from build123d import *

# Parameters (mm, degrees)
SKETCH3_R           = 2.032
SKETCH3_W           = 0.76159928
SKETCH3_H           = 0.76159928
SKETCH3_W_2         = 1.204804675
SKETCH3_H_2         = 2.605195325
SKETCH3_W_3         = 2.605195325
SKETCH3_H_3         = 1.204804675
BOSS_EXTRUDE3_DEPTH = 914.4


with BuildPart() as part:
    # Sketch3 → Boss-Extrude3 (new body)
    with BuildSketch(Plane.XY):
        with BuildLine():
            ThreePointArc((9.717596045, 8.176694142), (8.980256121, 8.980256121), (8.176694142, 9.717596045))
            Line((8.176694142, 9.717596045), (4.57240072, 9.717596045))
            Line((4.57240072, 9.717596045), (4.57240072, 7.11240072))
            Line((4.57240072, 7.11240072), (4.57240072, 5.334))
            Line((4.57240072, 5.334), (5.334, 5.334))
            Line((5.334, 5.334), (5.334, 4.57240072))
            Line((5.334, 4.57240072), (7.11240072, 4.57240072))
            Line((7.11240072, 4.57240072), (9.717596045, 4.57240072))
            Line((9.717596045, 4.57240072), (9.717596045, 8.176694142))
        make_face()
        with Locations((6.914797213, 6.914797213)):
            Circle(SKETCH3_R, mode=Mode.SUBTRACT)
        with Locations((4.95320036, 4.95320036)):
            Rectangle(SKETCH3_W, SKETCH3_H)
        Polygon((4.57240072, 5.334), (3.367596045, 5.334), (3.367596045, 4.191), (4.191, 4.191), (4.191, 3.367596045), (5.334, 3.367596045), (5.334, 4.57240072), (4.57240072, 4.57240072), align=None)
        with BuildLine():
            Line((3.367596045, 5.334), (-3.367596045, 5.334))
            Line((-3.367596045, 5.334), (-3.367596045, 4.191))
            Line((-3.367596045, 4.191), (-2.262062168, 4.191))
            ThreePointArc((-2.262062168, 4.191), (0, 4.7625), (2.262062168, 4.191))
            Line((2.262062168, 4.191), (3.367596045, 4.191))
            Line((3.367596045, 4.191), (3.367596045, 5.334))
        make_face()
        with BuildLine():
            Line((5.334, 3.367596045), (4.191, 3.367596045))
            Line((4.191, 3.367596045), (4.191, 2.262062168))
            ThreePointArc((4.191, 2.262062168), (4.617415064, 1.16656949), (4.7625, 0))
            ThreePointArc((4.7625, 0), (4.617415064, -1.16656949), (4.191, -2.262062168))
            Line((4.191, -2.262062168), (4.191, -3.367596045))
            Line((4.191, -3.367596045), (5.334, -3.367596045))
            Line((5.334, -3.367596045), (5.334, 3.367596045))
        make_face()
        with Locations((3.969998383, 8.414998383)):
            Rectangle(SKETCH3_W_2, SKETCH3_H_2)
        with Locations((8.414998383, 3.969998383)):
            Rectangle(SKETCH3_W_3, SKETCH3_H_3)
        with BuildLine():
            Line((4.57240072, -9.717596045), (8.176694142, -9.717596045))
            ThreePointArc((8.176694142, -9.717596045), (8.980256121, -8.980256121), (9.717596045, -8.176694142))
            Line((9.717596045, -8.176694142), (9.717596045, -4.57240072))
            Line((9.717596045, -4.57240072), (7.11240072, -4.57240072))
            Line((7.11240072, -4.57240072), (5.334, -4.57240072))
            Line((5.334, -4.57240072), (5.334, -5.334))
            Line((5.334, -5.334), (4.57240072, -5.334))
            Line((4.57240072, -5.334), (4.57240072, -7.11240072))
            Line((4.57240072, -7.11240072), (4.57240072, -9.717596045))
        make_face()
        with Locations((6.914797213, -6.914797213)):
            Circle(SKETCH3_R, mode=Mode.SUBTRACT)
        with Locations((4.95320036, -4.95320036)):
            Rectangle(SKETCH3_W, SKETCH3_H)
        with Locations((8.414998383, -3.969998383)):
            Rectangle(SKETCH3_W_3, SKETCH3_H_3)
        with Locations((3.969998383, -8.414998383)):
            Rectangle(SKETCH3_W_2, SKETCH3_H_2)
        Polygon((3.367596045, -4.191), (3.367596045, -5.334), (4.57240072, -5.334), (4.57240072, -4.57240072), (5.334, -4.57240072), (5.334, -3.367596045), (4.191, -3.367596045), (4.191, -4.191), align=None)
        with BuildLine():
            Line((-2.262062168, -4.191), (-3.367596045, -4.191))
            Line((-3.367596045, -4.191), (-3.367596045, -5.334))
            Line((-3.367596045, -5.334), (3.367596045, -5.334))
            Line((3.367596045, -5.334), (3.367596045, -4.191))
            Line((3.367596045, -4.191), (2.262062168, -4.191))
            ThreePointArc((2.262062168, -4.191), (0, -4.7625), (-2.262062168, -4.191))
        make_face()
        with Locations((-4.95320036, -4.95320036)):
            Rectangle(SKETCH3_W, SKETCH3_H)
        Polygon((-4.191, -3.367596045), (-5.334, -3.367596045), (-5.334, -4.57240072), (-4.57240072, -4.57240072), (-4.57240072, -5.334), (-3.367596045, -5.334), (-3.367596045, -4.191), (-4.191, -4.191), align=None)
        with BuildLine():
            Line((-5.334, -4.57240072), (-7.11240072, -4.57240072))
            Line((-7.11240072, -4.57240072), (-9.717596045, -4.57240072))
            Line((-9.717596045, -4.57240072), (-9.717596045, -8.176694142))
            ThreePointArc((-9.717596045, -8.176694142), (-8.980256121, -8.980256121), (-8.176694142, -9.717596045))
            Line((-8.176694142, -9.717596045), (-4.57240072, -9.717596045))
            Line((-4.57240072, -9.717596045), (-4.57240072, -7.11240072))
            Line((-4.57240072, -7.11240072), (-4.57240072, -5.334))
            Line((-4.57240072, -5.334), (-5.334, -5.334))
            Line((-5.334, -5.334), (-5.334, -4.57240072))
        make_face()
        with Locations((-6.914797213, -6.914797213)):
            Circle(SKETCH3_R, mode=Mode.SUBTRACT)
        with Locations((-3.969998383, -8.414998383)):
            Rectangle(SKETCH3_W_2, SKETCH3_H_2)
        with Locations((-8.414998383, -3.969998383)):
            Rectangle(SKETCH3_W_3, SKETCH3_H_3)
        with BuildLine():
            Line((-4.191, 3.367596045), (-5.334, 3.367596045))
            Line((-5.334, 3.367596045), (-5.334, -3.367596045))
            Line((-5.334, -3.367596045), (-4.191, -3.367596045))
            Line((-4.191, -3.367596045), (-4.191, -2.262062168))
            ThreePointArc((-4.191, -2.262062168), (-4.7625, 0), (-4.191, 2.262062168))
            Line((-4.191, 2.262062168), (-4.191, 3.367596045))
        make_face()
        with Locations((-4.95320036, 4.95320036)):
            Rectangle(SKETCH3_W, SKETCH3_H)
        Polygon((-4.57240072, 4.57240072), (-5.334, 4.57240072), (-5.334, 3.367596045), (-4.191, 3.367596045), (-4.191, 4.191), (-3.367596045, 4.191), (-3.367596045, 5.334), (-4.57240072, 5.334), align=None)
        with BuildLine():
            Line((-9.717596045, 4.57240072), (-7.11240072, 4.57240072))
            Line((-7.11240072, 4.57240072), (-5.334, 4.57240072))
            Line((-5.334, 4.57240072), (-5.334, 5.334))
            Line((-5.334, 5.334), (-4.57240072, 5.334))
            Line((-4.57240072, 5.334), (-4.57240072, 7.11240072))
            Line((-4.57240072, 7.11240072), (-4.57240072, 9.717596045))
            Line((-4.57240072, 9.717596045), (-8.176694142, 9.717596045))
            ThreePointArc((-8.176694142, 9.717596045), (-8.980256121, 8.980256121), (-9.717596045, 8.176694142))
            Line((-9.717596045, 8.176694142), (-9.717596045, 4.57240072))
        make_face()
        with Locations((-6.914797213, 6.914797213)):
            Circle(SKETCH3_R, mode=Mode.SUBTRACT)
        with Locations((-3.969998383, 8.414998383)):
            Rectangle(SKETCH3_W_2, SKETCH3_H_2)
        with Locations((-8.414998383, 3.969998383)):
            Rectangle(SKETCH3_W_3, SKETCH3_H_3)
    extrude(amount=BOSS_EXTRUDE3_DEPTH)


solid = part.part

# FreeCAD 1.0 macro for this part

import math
import FreeCAD as App
import Part
import Sketcher

V = App.Vector
Q = App.Units.Quantity

doc = App.newDocument("Part")
body = doc.addObject("PartDesign::Body", "Body")

# Sketch on XY plane
sketch1 = body.newObject("Sketcher::SketchObject", "Sketch")
sketch1.AttachmentSupport = (doc.getObject("XY_Plane"), [""])
sketch1.MapMode = "FlatFace"
sketch1.addGeometry(Part.ArcOfCircle(Part.Circle(V(0, 0, 0), V(0, 0, 1), 12.7), math.radians(40.08), math.radians(49.92)), False)
sketch1.addGeometry(Part.LineSegment(V(8.2, 9.7, 0), V(4.6, 9.7, 0)), False)
sketch1.addGeometry(Part.LineSegment(V(4.6, 9.7, 0), V(3.4, 9.7, 0)), False)
sketch1.addGeometry(Part.LineSegment(V(3.4, 9.7, 0), V(3.4, 7.1, 0)), False)
sketch1.addGeometry(Part.LineSegment(V(3.4, 7.1, 0), V(4.6, 7.1, 0)), False)
sketch1.addGeometry(Part.LineSegment(V(4.6, 7.1, 0), V(4.6, 5.3, 0)), False)
sketch1.addGeometry(Part.LineSegment(V(4.6, 5.3, 0), V(-4.6, 5.3, 0)), False)
sketch1.addGeometry(Part.LineSegment(V(-4.6, 5.3, 0), V(-4.6, 7.1, 0)), False)
sketch1.addGeometry(Part.LineSegment(V(-4.6, 7.1, 0), V(-3.4, 7.1, 0)), False)
sketch1.addGeometry(Part.LineSegment(V(-3.4, 7.1, 0), V(-3.4, 9.7, 0)), False)
sketch1.addGeometry(Part.LineSegment(V(-3.4, 9.7, 0), V(-4.6, 9.7, 0)), False)
sketch1.addGeometry(Part.LineSegment(V(-4.6, 9.7, 0), V(-8.2, 9.7, 0)), False)
sketch1.addGeometry(Part.ArcOfCircle(Part.Circle(V(0, 0, 0), V(0, 0, 1), 12.7), math.radians(130.08), math.radians(139.92)), False)
sketch1.addGeometry(Part.LineSegment(V(-9.7, 8.2, 0), V(-9.7, 4.6, 0)), False)
sketch1.addGeometry(Part.LineSegment(V(-9.7, 4.6, 0), V(-9.7, 3.4, 0)), False)
sketch1.addGeometry(Part.LineSegment(V(-9.7, 3.4, 0), V(-7.1, 3.4, 0)), False)
sketch1.addGeometry(Part.LineSegment(V(-7.1, 3.4, 0), V(-7.1, 4.6, 0)), False)
sketch1.addGeometry(Part.LineSegment(V(-7.1, 4.6, 0), V(-5.3, 4.6, 0)), False)
sketch1.addGeometry(Part.LineSegment(V(-5.3, 4.6, 0), V(-5.3, -4.6, 0)), False)
sketch1.addGeometry(Part.LineSegment(V(-5.3, -4.6, 0), V(-7.1, -4.6, 0)), False)
sketch1.addGeometry(Part.LineSegment(V(-7.1, -4.6, 0), V(-7.1, -3.4, 0)), False)
sketch1.addGeometry(Part.LineSegment(V(-7.1, -3.4, 0), V(-9.7, -3.4, 0)), False)
sketch1.addGeometry(Part.LineSegment(V(-9.7, -3.4, 0), V(-9.7, -4.6, 0)), False)
sketch1.addGeometry(Part.LineSegment(V(-9.7, -4.6, 0), V(-9.7, -8.2, 0)), False)
sketch1.addGeometry(Part.ArcOfCircle(Part.Circle(V(0, 0, 0), V(0, 0, 1), 12.7), math.radians(-139.92), math.radians(-130.08)), False)
sketch1.addGeometry(Part.LineSegment(V(-8.2, -9.7, 0), V(-4.6, -9.7, 0)), False)
sketch1.addGeometry(Part.LineSegment(V(-4.6, -9.7, 0), V(-3.4, -9.7, 0)), False)
sketch1.addGeometry(Part.LineSegment(V(-3.4, -9.7, 0), V(-3.4, -7.1, 0)), False)
sketch1.addGeometry(Part.LineSegment(V(-3.4, -7.1, 0), V(-4.6, -7.1, 0)), False)
sketch1.addGeometry(Part.LineSegment(V(-4.6, -7.1, 0), V(-4.6, -5.3, 0)), False)
sketch1.addGeometry(Part.LineSegment(V(-4.6, -5.3, 0), V(4.6, -5.3, 0)), False)
sketch1.addGeometry(Part.LineSegment(V(4.6, -5.3, 0), V(4.6, -7.1, 0)), False)
sketch1.addGeometry(Part.LineSegment(V(4.6, -7.1, 0), V(3.4, -7.1, 0)), False)
sketch1.addGeometry(Part.LineSegment(V(3.4, -7.1, 0), V(3.4, -9.7, 0)), False)
sketch1.addGeometry(Part.LineSegment(V(3.4, -9.7, 0), V(4.6, -9.7, 0)), False)
sketch1.addGeometry(Part.LineSegment(V(4.6, -9.7, 0), V(8.2, -9.7, 0)), False)
sketch1.addGeometry(Part.ArcOfCircle(Part.Circle(V(0, 0, 0), V(0, 0, 1), 12.7), math.radians(-49.92), math.radians(-40.08)), False)
sketch1.addGeometry(Part.LineSegment(V(9.7, -8.2, 0), V(9.7, -4.6, 0)), False)
sketch1.addGeometry(Part.LineSegment(V(9.7, -4.6, 0), V(9.7, -3.4, 0)), False)
sketch1.addGeometry(Part.LineSegment(V(9.7, -3.4, 0), V(7.1, -3.4, 0)), False)
sketch1.addGeometry(Part.LineSegment(V(7.1, -3.4, 0), V(7.1, -4.6, 0)), False)
sketch1.addGeometry(Part.LineSegment(V(7.1, -4.6, 0), V(5.3, -4.6, 0)), False)
sketch1.addGeometry(Part.LineSegment(V(5.3, -4.6, 0), V(5.3, 4.6, 0)), False)
sketch1.addGeometry(Part.LineSegment(V(5.3, 4.6, 0), V(7.1, 4.6, 0)), False)
sketch1.addGeometry(Part.LineSegment(V(7.1, 4.6, 0), V(7.1, 3.4, 0)), False)
sketch1.addGeometry(Part.LineSegment(V(7.1, 3.4, 0), V(9.7, 3.4, 0)), False)
sketch1.addGeometry(Part.LineSegment(V(9.7, 3.4, 0), V(9.7, 4.6, 0)), False)
sketch1.addGeometry(Part.LineSegment(V(9.7, 4.6, 0), V(9.7, 8.2, 0)), False)
sketch1.addGeometry(Part.Circle(V(-6.9, -6.9, 0), V(0, 0, 1), 2), False)
sketch1.addGeometry(Part.Circle(V(6.9, -6.9, 0), V(0, 0, 1), 2), False)
sketch1.addGeometry(Part.Circle(V(-6.9, 6.9, 0), V(0, 0, 1), 2), False)
sketch1.addGeometry(Part.ArcOfCircle(Part.Circle(V(0, 0, 0), V(0, 0, 1), 4.8), math.radians(62), math.radians(118)), False)
sketch1.addGeometry(Part.LineSegment(V(2.3, 4.2, 0), V(4.2, 4.2, 0)), False)
sketch1.addGeometry(Part.LineSegment(V(4.2, 4.2, 0), V(4.2, 2.3, 0)), False)
sketch1.addGeometry(Part.ArcOfCircle(Part.Circle(V(0, 0, 0), V(0, 0, 1), 4.8), math.radians(0), math.radians(28)), False)
sketch1.addGeometry(Part.ArcOfCircle(Part.Circle(V(0, 0, 0), V(0, 0, 1), 4.8), math.radians(-28), math.radians(0)), False)
sketch1.addGeometry(Part.LineSegment(V(4.2, -2.3, 0), V(4.2, -4.2, 0)), False)
sketch1.addGeometry(Part.LineSegment(V(4.2, -4.2, 0), V(2.3, -4.2, 0)), False)
sketch1.addGeometry(Part.ArcOfCircle(Part.Circle(V(0, 0, 0), V(0, 0, 1), 4.8), math.radians(-118), math.radians(-62)), False)
sketch1.addGeometry(Part.LineSegment(V(-2.3, -4.2, 0), V(-4.2, -4.2, 0)), False)
sketch1.addGeometry(Part.LineSegment(V(-4.2, -4.2, 0), V(-4.2, -2.3, 0)), False)
sketch1.addGeometry(Part.ArcOfCircle(Part.Circle(V(0, 0, 0), V(0, 0, 1), 4.8), math.radians(152), math.radians(208)), False)
sketch1.addGeometry(Part.LineSegment(V(-4.2, 2.3, 0), V(-4.2, 4.2, 0)), False)
sketch1.addGeometry(Part.LineSegment(V(-4.2, 4.2, 0), V(-2.3, 4.2, 0)), False)
sketch1.addGeometry(Part.Circle(V(6.9, 6.9, 0), V(0, 0, 1), 2), False)
sketch1.addConstraint(Sketcher.Constraint("Coincident", 0, 2, 1, 1))
sketch1.addConstraint(Sketcher.Constraint("Coincident", 1, 2, 2, 1))
sketch1.addConstraint(Sketcher.Constraint("Coincident", 2, 2, 3, 1))
sketch1.addConstraint(Sketcher.Constraint("Coincident", 3, 2, 4, 1))
sketch1.addConstraint(Sketcher.Constraint("Coincident", 4, 2, 5, 1))
sketch1.addConstraint(Sketcher.Constraint("Coincident", 5, 2, 6, 1))
sketch1.addConstraint(Sketcher.Constraint("Coincident", 6, 2, 7, 1))
sketch1.addConstraint(Sketcher.Constraint("Coincident", 7, 2, 8, 1))
sketch1.addConstraint(Sketcher.Constraint("Coincident", 8, 2, 9, 1))
sketch1.addConstraint(Sketcher.Constraint("Coincident", 9, 2, 10, 1))
sketch1.addConstraint(Sketcher.Constraint("Coincident", 10, 2, 11, 1))
sketch1.addConstraint(Sketcher.Constraint("Coincident", 11, 2, 12, 1))
sketch1.addConstraint(Sketcher.Constraint("Coincident", 12, 2, 13, 1))
sketch1.addConstraint(Sketcher.Constraint("Coincident", 13, 2, 14, 1))
sketch1.addConstraint(Sketcher.Constraint("Coincident", 14, 2, 15, 1))
sketch1.addConstraint(Sketcher.Constraint("Coincident", 15, 2, 16, 1))
sketch1.addConstraint(Sketcher.Constraint("Coincident", 16, 2, 17, 1))
sketch1.addConstraint(Sketcher.Constraint("Coincident", 17, 2, 18, 1))
sketch1.addConstraint(Sketcher.Constraint("Coincident", 18, 2, 19, 1))
sketch1.addConstraint(Sketcher.Constraint("Coincident", 19, 2, 20, 1))
sketch1.addConstraint(Sketcher.Constraint("Coincident", 20, 2, 21, 1))
sketch1.addConstraint(Sketcher.Constraint("Coincident", 21, 2, 22, 1))
sketch1.addConstraint(Sketcher.Constraint("Coincident", 22, 2, 23, 1))
sketch1.addConstraint(Sketcher.Constraint("Coincident", 23, 2, 24, 1))
sketch1.addConstraint(Sketcher.Constraint("Coincident", 24, 2, 25, 1))
sketch1.addConstraint(Sketcher.Constraint("Coincident", 25, 2, 26, 1))
sketch1.addConstraint(Sketcher.Constraint("Coincident", 26, 2, 27, 1))
sketch1.addConstraint(Sketcher.Constraint("Coincident", 27, 2, 28, 1))
sketch1.addConstraint(Sketcher.Constraint("Coincident", 28, 2, 29, 1))
sketch1.addConstraint(Sketcher.Constraint("Coincident", 29, 2, 30, 1))
sketch1.addConstraint(Sketcher.Constraint("Coincident", 30, 2, 31, 1))
sketch1.addConstraint(Sketcher.Constraint("Coincident", 31, 2, 32, 1))
sketch1.addConstraint(Sketcher.Constraint("Coincident", 32, 2, 33, 1))
sketch1.addConstraint(Sketcher.Constraint("Coincident", 33, 2, 34, 1))
sketch1.addConstraint(Sketcher.Constraint("Coincident", 34, 2, 35, 1))
sketch1.addConstraint(Sketcher.Constraint("Coincident", 35, 2, 36, 1))
sketch1.addConstraint(Sketcher.Constraint("Coincident", 36, 2, 37, 1))
sketch1.addConstraint(Sketcher.Constraint("Coincident", 37, 2, 38, 1))
sketch1.addConstraint(Sketcher.Constraint("Coincident", 38, 2, 39, 1))
sketch1.addConstraint(Sketcher.Constraint("Coincident", 39, 2, 40, 1))
sketch1.addConstraint(Sketcher.Constraint("Coincident", 40, 2, 41, 1))
sketch1.addConstraint(Sketcher.Constraint("Coincident", 41, 2, 42, 1))
sketch1.addConstraint(Sketcher.Constraint("Coincident", 42, 2, 43, 1))
sketch1.addConstraint(Sketcher.Constraint("Coincident", 43, 2, 44, 1))
sketch1.addConstraint(Sketcher.Constraint("Coincident", 44, 2, 45, 1))
sketch1.addConstraint(Sketcher.Constraint("Coincident", 45, 2, 46, 1))
sketch1.addConstraint(Sketcher.Constraint("Coincident", 46, 2, 47, 1))
sketch1.addConstraint(Sketcher.Constraint("Coincident", 47, 2, 0, 1))
sketch1.addConstraint(Sketcher.Constraint("Coincident", 51, 1, 52, 1))
sketch1.addConstraint(Sketcher.Constraint("Coincident", 52, 2, 53, 1))
sketch1.addConstraint(Sketcher.Constraint("Coincident", 53, 2, 54, 2))
sketch1.addConstraint(Sketcher.Constraint("Tangent", 54, 1, 55, 2))
sketch1.addConstraint(Sketcher.Constraint("Coincident", 55, 1, 56, 1))
sketch1.addConstraint(Sketcher.Constraint("Coincident", 56, 2, 57, 1))
sketch1.addConstraint(Sketcher.Constraint("Coincident", 57, 2, 58, 2))
sketch1.addConstraint(Sketcher.Constraint("Coincident", 58, 1, 59, 1))
sketch1.addConstraint(Sketcher.Constraint("Coincident", 59, 2, 60, 1))
sketch1.addConstraint(Sketcher.Constraint("Coincident", 60, 2, 61, 2))
sketch1.addConstraint(Sketcher.Constraint("Coincident", 61, 1, 62, 1))
sketch1.addConstraint(Sketcher.Constraint("Coincident", 62, 2, 63, 1))
sketch1.addConstraint(Sketcher.Constraint("Coincident", 63, 2, 51, 2))
sketch1.addConstraint(Sketcher.Constraint("Horizontal", 1))
sketch1.addConstraint(Sketcher.Constraint("Horizontal", 2))
sketch1.addConstraint(Sketcher.Constraint("Vertical", 3))
sketch1.addConstraint(Sketcher.Constraint("Horizontal", 4))
sketch1.addConstraint(Sketcher.Constraint("Vertical", 5))
sketch1.addConstraint(Sketcher.Constraint("Horizontal", 6))
sketch1.addConstraint(Sketcher.Constraint("Vertical", 7))
sketch1.addConstraint(Sketcher.Constraint("Horizontal", 8))
sketch1.addConstraint(Sketcher.Constraint("Vertical", 9))
sketch1.addConstraint(Sketcher.Constraint("Horizontal", 10))
sketch1.addConstraint(Sketcher.Constraint("Horizontal", 11))
sketch1.addConstraint(Sketcher.Constraint("Vertical", 13))
sketch1.addConstraint(Sketcher.Constraint("Vertical", 14))
sketch1.addConstraint(Sketcher.Constraint("Horizontal", 15))
sketch1.addConstraint(Sketcher.Constraint("Vertical", 16))
sketch1.addConstraint(Sketcher.Constraint("Horizontal", 17))
sketch1.addConstraint(Sketcher.Constraint("Vertical", 18))
sketch1.addConstraint(Sketcher.Constraint("Horizontal", 19))
sketch1.addConstraint(Sketcher.Constraint("Vertical", 20))
sketch1.addConstraint(Sketcher.Constraint("Horizontal", 21))
sketch1.addConstraint(Sketcher.Constraint("Vertical", 22))
sketch1.addConstraint(Sketcher.Constraint("Vertical", 23))
sketch1.addConstraint(Sketcher.Constraint("Horizontal", 25))
sketch1.addConstraint(Sketcher.Constraint("Horizontal", 26))
sketch1.addConstraint(Sketcher.Constraint("Vertical", 27))
sketch1.addConstraint(Sketcher.Constraint("Horizontal", 28))
sketch1.addConstraint(Sketcher.Constraint("Vertical", 29))
sketch1.addConstraint(Sketcher.Constraint("Horizontal", 30))
sketch1.addConstraint(Sketcher.Constraint("Vertical", 31))
sketch1.addConstraint(Sketcher.Constraint("Horizontal", 32))
sketch1.addConstraint(Sketcher.Constraint("Vertical", 33))
sketch1.addConstraint(Sketcher.Constraint("Horizontal", 34))
sketch1.addConstraint(Sketcher.Constraint("Horizontal", 35))
sketch1.addConstraint(Sketcher.Constraint("Vertical", 37))
sketch1.addConstraint(Sketcher.Constraint("Vertical", 38))
sketch1.addConstraint(Sketcher.Constraint("Horizontal", 39))
sketch1.addConstraint(Sketcher.Constraint("Vertical", 40))
sketch1.addConstraint(Sketcher.Constraint("Horizontal", 41))
sketch1.addConstraint(Sketcher.Constraint("Vertical", 42))
sketch1.addConstraint(Sketcher.Constraint("Horizontal", 43))
sketch1.addConstraint(Sketcher.Constraint("Vertical", 44))
sketch1.addConstraint(Sketcher.Constraint("Horizontal", 45))
sketch1.addConstraint(Sketcher.Constraint("Vertical", 46))
sketch1.addConstraint(Sketcher.Constraint("Vertical", 47))
sketch1.addConstraint(Sketcher.Constraint("Horizontal", 52))
sketch1.addConstraint(Sketcher.Constraint("Vertical", 53))
sketch1.addConstraint(Sketcher.Constraint("Vertical", 56))
sketch1.addConstraint(Sketcher.Constraint("Horizontal", 57))
sketch1.addConstraint(Sketcher.Constraint("Horizontal", 59))
sketch1.addConstraint(Sketcher.Constraint("Vertical", 60))
sketch1.addConstraint(Sketcher.Constraint("Vertical", 62))
sketch1.addConstraint(Sketcher.Constraint("Horizontal", 63))
sketch1.addConstraint(Sketcher.Constraint("Coincident", 0, 3, -1, 1))
sketch1.addConstraint(Sketcher.Constraint("Coincident", 12, 3, -1, 1))
sketch1.addConstraint(Sketcher.Constraint("Coincident", 24, 3, -1, 1))
sketch1.addConstraint(Sketcher.Constraint("Coincident", 36, 3, -1, 1))
sketch1.addConstraint(Sketcher.Constraint("Coincident", 51, 3, -1, 1))
sketch1.addConstraint(Sketcher.Constraint("Coincident", 54, 3, -1, 1))
sketch1.addConstraint(Sketcher.Constraint("Coincident", 58, 3, -1, 1))
sketch1.addConstraint(Sketcher.Constraint("Coincident", 61, 3, -1, 1))
sketch1.addConstraint(Sketcher.Constraint("Equal", 0, 12))
sketch1.addConstraint(Sketcher.Constraint("Equal", 12, 24))
sketch1.addConstraint(Sketcher.Constraint("Equal", 24, 36))
sketch1.addConstraint(Sketcher.Constraint("Equal", 48, 49))
sketch1.addConstraint(Sketcher.Constraint("Equal", 49, 50))
sketch1.addConstraint(Sketcher.Constraint("Equal", 51, 54))
sketch1.addConstraint(Sketcher.Constraint("Equal", 54, 55))
sketch1.addConstraint(Sketcher.Constraint("Equal", 55, 58))
sketch1.addConstraint(Sketcher.Constraint("Equal", 58, 61))
sketch1.addConstraint(Sketcher.Constraint("Equal", 50, 64))
sketch1.addConstraint(Sketcher.Constraint("Symmetric", 49, 3, 50, 3, -1, 1))
sketch1.addConstraint(Sketcher.Constraint("Symmetric", 48, 3, 64, 3, -1, 1))
sketch1.addConstraint(Sketcher.Constraint("Symmetric", 1, 2, 25, 2, -1, 1))
sketch1.addConstraint(Sketcher.Constraint("Symmetric", 3, 2, 27, 2, -1, 1))
sketch1.addConstraint(Sketcher.Constraint("Symmetric", 5, 2, 29, 2, -1, 1))
sketch1.addConstraint(Sketcher.Constraint("Symmetric", 7, 2, 31, 2, -1, 1))
sketch1.addConstraint(Sketcher.Constraint("Symmetric", 9, 2, 33, 2, -1, 1))
sketch1.addConstraint(Sketcher.Constraint("Symmetric", 13, 2, 37, 2, -1, 1))
sketch1.addConstraint(Sketcher.Constraint("Symmetric", 15, 2, 39, 2, -1, 1))
sketch1.addConstraint(Sketcher.Constraint("Symmetric", 17, 2, 41, 2, -1, 1))
sketch1.addConstraint(Sketcher.Constraint("Symmetric", 19, 2, 43, 2, -1, 1))
sketch1.addConstraint(Sketcher.Constraint("Symmetric", 21, 2, 45, 2, -1, 1))
sketch1.addConstraint(Sketcher.Constraint("Symmetric", 52, 2, 59, 2, -1, 1))
sketch1.addConstraint(Sketcher.Constraint("Symmetric", 56, 2, 62, 2, -1, 1))
sketch1.addConstraint(Sketcher.Constraint("Symmetric", 48, 3, 49, 3, -2))
sketch1.addConstraint(Sketcher.Constraint("Symmetric", 4, 2, 7, 2, -2))
sketch1.addConstraint(Sketcher.Constraint("Symmetric", 2, 2, 9, 2, -2))
sketch1.addConstraint(Sketcher.Constraint("Symmetric", 22, 2, 37, 2, -2))
sketch1.addConstraint(Sketcher.Constraint("Symmetric", 20, 2, 39, 2, -2))
sketch1.addConstraint(Sketcher.Constraint("Symmetric", 56, 2, 59, 2, -2))
sketch1.addConstraint(Sketcher.Constraint("PointOnObject", 54, 1, -1))
sketch1.addConstraint(Sketcher.Constraint("Horizontal", 13, 2, 16, 2))
sketch1.addConstraint(Sketcher.Constraint("Horizontal", 19, 2, 22, 2))
sketch1.addConstraint(Sketcher.Constraint("Horizontal", 43, 2, 46, 2))
sketch1.addConstraint(Sketcher.Constraint("Vertical", 1, 2, 4, 2))
sketch1.addConstraint(Sketcher.Constraint("Vertical", 7, 2, 10, 2))
sketch1.addConstraint(Sketcher.Constraint("Vertical", 31, 2, 34, 2))
sketch1.addConstraint(Sketcher.Constraint("Equal", 45, 3))
sketch1.addConstraint(Sketcher.Constraint("Equal", 43, 5))
sketch1.addConstraint(Sketcher.Constraint("Equal", 35, 13))
sketch1.addConstraint(Sketcher.Constraint("Equal", 34, 14))
sketch1.addConstraint(Sketcher.Constraint("Equal", 30, 18))
sketch1.addConstraint(Sketcher.Constraint("Equal", 63, 53))
sketch1.addConstraint(Sketcher.Constraint("Radius", 0, Q("0.5 in")))
sketch1.addConstraint(Sketcher.Constraint("Diameter", 48, Q("0.16 in")))
sketch1.addConstraint(Sketcher.Constraint("Radius", 51, Q("0.1875 in")))
sketch1.addConstraint(Sketcher.Constraint("DistanceY", -1, 1, 5, 2, Q("0.21 in")))
sketch1.addConstraint(Sketcher.Constraint("DistanceY", -1, 1, 51, 1, Q("0.165 in")))
sketch1.addConstraint(Sketcher.Constraint("DistanceX", 6, 2, 6, 1, 9.144801))
sketch1.addConstraint(Sketcher.Constraint("DistanceX", 17, 1, 17, 2, 1.778401))
sketch1.addConstraint(Sketcher.Constraint("DistanceX", 1, 2, 1, 1, 3.604293))
sketch1.addConstraint(Sketcher.Constraint("DistanceX", 2, 2, 2, 1, 1.204805))
sketch1.addConstraint(Sketcher.Constraint("DistanceX", 48, 3, -1, 1, 6.914797))
sketch1.addConstraint(Sketcher.Constraint("DistanceY", 48, 3, -1, 1, 6.914797))
pad1 = body.newObject("PartDesign::Pad", "Pad")
pad1.Profile = sketch1
pad1.Length = Q("36 in")

doc.recompute()
